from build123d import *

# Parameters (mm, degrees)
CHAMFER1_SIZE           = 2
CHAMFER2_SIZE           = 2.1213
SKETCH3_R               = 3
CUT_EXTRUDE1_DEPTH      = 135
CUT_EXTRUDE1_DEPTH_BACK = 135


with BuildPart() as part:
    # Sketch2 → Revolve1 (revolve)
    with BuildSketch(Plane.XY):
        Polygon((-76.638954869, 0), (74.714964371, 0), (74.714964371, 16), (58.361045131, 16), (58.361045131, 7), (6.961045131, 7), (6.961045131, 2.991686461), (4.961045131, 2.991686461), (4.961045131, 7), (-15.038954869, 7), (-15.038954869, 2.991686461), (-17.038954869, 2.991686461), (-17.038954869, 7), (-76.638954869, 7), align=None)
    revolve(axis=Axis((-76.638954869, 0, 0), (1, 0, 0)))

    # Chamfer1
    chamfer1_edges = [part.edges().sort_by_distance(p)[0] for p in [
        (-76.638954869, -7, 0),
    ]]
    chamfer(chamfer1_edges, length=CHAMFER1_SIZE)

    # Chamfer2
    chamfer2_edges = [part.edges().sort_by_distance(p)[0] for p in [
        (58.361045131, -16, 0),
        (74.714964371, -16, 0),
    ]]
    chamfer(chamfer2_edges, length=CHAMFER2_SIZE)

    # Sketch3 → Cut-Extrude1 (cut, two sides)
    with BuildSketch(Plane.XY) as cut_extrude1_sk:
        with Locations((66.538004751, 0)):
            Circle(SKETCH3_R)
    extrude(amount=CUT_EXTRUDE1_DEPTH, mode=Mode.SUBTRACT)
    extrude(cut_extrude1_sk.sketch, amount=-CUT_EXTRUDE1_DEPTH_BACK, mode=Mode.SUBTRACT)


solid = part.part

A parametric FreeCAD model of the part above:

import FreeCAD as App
import Part
import Sketcher


def edges_at(feature, points):
    """Names of the edges that pass closest to the given points."""
    edges = feature.Shape.Edges
    near = lambda p: min(range(len(edges)), key=lambda i: edges[i].distToShape(Part.Vertex(*p))[0])
    return sorted({f"Edge{near(p) + 1}" for p in points})

doc = App.newDocument("Part")
params = doc.addObject("Spreadsheet::Sheet", "Params")
for row, (alias, value) in enumerate([
    ("sketch1_width", "2 mm"),
    ("sketch1_width2", "20 mm"),
    ("sketch1_height", "16 mm"),
    ("sketch1_height2", "9 mm"),
    ("sketch1_width3", "51.4 mm"),
    ("revolution_angle", "360 deg"),
    ("chamfer_size", "2 mm"),
    ("chamfer2_size", "2.1213 mm"),
    ("sketch2_diameter", "6 mm"),
], start=1):
    params.set(f"A{row}", alias)
    params.set(f"B{row}", "=" + value)
    params.setAlias(f"B{row}", alias)

body = doc.addObject("PartDesign::Body", "Body")

sketch1 = body.newObject("Sketcher::SketchObject", "Sketch")
sketch1.AttachmentSupport = (doc.getObject("XY_Plane"), [""])
sketch1.MapMode = "FlatFace"
sketch1.addGeometry(Part.LineSegment(App.Vector(-76.6, 0, 0), App.Vector(74.7, 0, 0)), False)
sketch1.addGeometry(Part.LineSegment(App.Vector(74.7, 0, 0), App.Vector(74.7, 16, 0)), False)
sketch1.addGeometry(Part.LineSegment(App.Vector(74.7, 16, 0), App.Vector(58.4, 16, 0)), False)
sketch1.addGeometry(Part.LineSegment(App.Vector(58.4, 16, 0), App.Vector(58.4, 7, 0)), False)
sketch1.addGeometry(Part.LineSegment(App.Vector(58.4, 7, 0), App.Vector(7, 7, 0)), False)
sketch1.addGeometry(Part.LineSegment(App.Vector(7, 7, 0), App.Vector(7, 3, 0)), False)
sketch1.addGeometry(Part.LineSegment(App.Vector(7, 3, 0), App.Vector(5, 3, 0)), False)
sketch1.addGeometry(Part.LineSegment(App.Vector(5, 3, 0), App.Vector(5, 7, 0)), False)
sketch1.addGeometry(Part.LineSegment(App.Vector(5, 7, 0), App.Vector(-15, 7, 0)), False)
sketch1.addGeometry(Part.LineSegment(App.Vector(-15, 7, 0), App.Vector(-15, 3, 0)), False)
sketch1.addGeometry(Part.LineSegment(App.Vector(-15, 3, 0), App.Vector(-17, 3, 0)), False)
sketch1.addGeometry(Part.LineSegment(App.Vector(-17, 3, 0), App.Vector(-17, 7, 0)), False)
sketch1.addGeometry(Part.LineSegment(App.Vector(-17, 7, 0), App.Vector(-76.6, 7, 0)), False)
sketch1.addGeometry(Part.LineSegment(App.Vector(-76.6, 7, 0), App.Vector(-76.6, 0, 0)), False)
sketch1.addConstraint(Sketcher.Constraint("Coincident", 0, 2, 1, 1))
sketch1.addConstraint(Sketcher.Constraint("Coincident", 1, 2, 2, 1))
sketch1.addConstraint(Sketcher.Constraint("Coincident", 2, 2, 3, 1))
sketch1.addConstraint(Sketcher.Constraint("Coincident", 3, 2, 4, 1))
sketch1.addConstraint(Sketcher.Constraint("Coincident", 4, 2, 5, 1))
sketch1.addConstraint(Sketcher.Constraint("Coincident", 5, 2, 6, 1))
sketch1.addConstraint(Sketcher.Constraint("Coincident", 6, 2, 7, 1))
sketch1.addConstraint(Sketcher.Constraint("Coincident", 7, 2, 8, 1))
sketch1.addConstraint(Sketcher.Constraint("Coincident", 8, 2, 9, 1))
sketch1.addConstraint(Sketcher.Constraint("Coincident", 9, 2, 10, 1))
sketch1.addConstraint(Sketcher.Constraint("Coincident", 10, 2, 11, 1))
sketch1.addConstraint(Sketcher.Constraint("Coincident", 11, 2, 12, 1))
sketch1.addConstraint(Sketcher.Constraint("Coincident", 12, 2, 13, 1))
sketch1.addConstraint(Sketcher.Constraint("Coincident", 13, 2, 0, 1))
sketch1.addConstraint(Sketcher.Constraint("Horizontal", 0))
sketch1.addConstraint(Sketcher.Constraint("Vertical", 1))
sketch1.addConstraint(Sketcher.Constraint("Horizontal", 2))
sketch1.addConstraint(Sketcher.Constraint("Vertical", 3))
sketch1.addConstraint(Sketcher.Constraint("Horizontal", 4))
sketch1.addConstraint(Sketcher.Constraint("Vertical", 5))
sketch1.addConstraint(Sketcher.Constraint("Horizontal", 6))
sketch1.addConstraint(Sketcher.Constraint("Vertical", 7))
sketch1.addConstraint(Sketcher.Constraint("Horizontal", 8))
sketch1.addConstraint(Sketcher.Constraint("Vertical", 9))
sketch1.addConstraint(Sketcher.Constraint("Horizontal", 10))
sketch1.addConstraint(Sketcher.Constraint("Vertical", 11))
sketch1.addConstraint(Sketcher.Constraint("Horizontal", 12))
sketch1.addConstraint(Sketcher.Constraint("Vertical", 13))
sketch1.addConstraint(Sketcher.Constraint("PointOnObject", 0, 2, -1))
sketch1.addConstraint(Sketcher.Constraint("Horizontal", 4, 2, 7, 2))
sketch1.addConstraint(Sketcher.Constraint("Horizontal", 6, 2, 9, 2))
sketch1.addConstraint(Sketcher.Constraint("Horizontal", 8, 2, 11, 2))
sketch1.addConstraint(Sketcher.Constraint("Equal", 6, 10))
sketch1.addConstraint(Sketcher.Constraint("DistanceX", 6, 2, 6, 1, 2.0))
sketch1.addConstraint(Sketcher.Constraint("DistanceX", 8, 2, 8, 1, 20.0))
sketch1.addConstraint(Sketcher.Constraint("DistanceY", 1, 1, 1, 2, 16.0))
sketch1.addConstraint(Sketcher.Constraint("DistanceY", 3, 2, 3, 1, 9.0))
sketch1.addConstraint(Sketcher.Constraint("DistanceX", 4, 2, 4, 1, 51.4))
sketch1.addConstraint(Sketcher.Constraint("DistanceX", 12, 2, 12, 1, 59.6))
sketch1.addConstraint(Sketcher.Constraint("DistanceX", 0, 1, 0, 2, 151.353919))
sketch1.addConstraint(Sketcher.Constraint("DistanceY", 5, 2, 5, 1, 4.008314))
sketch1.addConstraint(Sketcher.Constraint("DistanceX", -1, 1, 0, 2, 74.714964))
sketch1.setExpression("Constraints[33]", "Params.sketch1_width")
sketch1.setExpression("Constraints[34]", "Params.sketch1_width2")
sketch1.setExpression("Constraints[35]", "Params.sketch1_height")
sketch1.setExpression("Constraints[36]", "Params.sketch1_height2")
sketch1.setExpression("Constraints[37]", "Params.sketch1_width3")
revolution = body.newObject("PartDesign::Revolution", "Revolution")
revolution.Profile = sketch1
revolution.ReferenceAxis = (sketch1, ["H_Axis"])
revolution.setExpression("Angle", "Params.revolution_angle")
doc.recompute()

chamfer = body.newObject("PartDesign::Chamfer", "Chamfer")
chamfer.Base = (revolution, edges_at(revolution, [(-76.639, -7, 0)]))
chamfer.setExpression("Size", "Params.chamfer_size")
doc.recompute()

chamfer2 = body.newObject("PartDesign::Chamfer", "Chamfer001")
chamfer2.Base = (chamfer, edges_at(chamfer, [(58.361, -16, 0), (74.715, -16, 0)]))
chamfer2.setExpression("Size", "Params.chamfer2_size")

sketch2 = body.newObject("Sketcher::SketchObject", "Sketch001")
sketch2.AttachmentSupport = (doc.getObject("XY_Plane"), [""])
sketch2.MapMode = "FlatFace"
sketch2.addGeometry(Part.Circle(App.Vector(66.5, 0, 0), App.Vector(0, 0, 1), 3), False)
sketch2.addConstraint(Sketcher.Constraint("PointOnObject", 0, 3, -1))
sketch2.addConstraint(Sketcher.Constraint("Diameter", 0, 6.0))
sketch2.addConstraint(Sketcher.Constraint("DistanceX", -1, 1, 0, 3, 66.538005))
sketch2.setExpression("Constraints[1]", "Params.sketch2_diameter")
pocket1 = body.newObject("PartDesign::Pocket", "Pocket")
pocket1.Profile = sketch2
pocket1.Type = "ThroughAll"
pocket1.Midplane = True

doc.recompute()
